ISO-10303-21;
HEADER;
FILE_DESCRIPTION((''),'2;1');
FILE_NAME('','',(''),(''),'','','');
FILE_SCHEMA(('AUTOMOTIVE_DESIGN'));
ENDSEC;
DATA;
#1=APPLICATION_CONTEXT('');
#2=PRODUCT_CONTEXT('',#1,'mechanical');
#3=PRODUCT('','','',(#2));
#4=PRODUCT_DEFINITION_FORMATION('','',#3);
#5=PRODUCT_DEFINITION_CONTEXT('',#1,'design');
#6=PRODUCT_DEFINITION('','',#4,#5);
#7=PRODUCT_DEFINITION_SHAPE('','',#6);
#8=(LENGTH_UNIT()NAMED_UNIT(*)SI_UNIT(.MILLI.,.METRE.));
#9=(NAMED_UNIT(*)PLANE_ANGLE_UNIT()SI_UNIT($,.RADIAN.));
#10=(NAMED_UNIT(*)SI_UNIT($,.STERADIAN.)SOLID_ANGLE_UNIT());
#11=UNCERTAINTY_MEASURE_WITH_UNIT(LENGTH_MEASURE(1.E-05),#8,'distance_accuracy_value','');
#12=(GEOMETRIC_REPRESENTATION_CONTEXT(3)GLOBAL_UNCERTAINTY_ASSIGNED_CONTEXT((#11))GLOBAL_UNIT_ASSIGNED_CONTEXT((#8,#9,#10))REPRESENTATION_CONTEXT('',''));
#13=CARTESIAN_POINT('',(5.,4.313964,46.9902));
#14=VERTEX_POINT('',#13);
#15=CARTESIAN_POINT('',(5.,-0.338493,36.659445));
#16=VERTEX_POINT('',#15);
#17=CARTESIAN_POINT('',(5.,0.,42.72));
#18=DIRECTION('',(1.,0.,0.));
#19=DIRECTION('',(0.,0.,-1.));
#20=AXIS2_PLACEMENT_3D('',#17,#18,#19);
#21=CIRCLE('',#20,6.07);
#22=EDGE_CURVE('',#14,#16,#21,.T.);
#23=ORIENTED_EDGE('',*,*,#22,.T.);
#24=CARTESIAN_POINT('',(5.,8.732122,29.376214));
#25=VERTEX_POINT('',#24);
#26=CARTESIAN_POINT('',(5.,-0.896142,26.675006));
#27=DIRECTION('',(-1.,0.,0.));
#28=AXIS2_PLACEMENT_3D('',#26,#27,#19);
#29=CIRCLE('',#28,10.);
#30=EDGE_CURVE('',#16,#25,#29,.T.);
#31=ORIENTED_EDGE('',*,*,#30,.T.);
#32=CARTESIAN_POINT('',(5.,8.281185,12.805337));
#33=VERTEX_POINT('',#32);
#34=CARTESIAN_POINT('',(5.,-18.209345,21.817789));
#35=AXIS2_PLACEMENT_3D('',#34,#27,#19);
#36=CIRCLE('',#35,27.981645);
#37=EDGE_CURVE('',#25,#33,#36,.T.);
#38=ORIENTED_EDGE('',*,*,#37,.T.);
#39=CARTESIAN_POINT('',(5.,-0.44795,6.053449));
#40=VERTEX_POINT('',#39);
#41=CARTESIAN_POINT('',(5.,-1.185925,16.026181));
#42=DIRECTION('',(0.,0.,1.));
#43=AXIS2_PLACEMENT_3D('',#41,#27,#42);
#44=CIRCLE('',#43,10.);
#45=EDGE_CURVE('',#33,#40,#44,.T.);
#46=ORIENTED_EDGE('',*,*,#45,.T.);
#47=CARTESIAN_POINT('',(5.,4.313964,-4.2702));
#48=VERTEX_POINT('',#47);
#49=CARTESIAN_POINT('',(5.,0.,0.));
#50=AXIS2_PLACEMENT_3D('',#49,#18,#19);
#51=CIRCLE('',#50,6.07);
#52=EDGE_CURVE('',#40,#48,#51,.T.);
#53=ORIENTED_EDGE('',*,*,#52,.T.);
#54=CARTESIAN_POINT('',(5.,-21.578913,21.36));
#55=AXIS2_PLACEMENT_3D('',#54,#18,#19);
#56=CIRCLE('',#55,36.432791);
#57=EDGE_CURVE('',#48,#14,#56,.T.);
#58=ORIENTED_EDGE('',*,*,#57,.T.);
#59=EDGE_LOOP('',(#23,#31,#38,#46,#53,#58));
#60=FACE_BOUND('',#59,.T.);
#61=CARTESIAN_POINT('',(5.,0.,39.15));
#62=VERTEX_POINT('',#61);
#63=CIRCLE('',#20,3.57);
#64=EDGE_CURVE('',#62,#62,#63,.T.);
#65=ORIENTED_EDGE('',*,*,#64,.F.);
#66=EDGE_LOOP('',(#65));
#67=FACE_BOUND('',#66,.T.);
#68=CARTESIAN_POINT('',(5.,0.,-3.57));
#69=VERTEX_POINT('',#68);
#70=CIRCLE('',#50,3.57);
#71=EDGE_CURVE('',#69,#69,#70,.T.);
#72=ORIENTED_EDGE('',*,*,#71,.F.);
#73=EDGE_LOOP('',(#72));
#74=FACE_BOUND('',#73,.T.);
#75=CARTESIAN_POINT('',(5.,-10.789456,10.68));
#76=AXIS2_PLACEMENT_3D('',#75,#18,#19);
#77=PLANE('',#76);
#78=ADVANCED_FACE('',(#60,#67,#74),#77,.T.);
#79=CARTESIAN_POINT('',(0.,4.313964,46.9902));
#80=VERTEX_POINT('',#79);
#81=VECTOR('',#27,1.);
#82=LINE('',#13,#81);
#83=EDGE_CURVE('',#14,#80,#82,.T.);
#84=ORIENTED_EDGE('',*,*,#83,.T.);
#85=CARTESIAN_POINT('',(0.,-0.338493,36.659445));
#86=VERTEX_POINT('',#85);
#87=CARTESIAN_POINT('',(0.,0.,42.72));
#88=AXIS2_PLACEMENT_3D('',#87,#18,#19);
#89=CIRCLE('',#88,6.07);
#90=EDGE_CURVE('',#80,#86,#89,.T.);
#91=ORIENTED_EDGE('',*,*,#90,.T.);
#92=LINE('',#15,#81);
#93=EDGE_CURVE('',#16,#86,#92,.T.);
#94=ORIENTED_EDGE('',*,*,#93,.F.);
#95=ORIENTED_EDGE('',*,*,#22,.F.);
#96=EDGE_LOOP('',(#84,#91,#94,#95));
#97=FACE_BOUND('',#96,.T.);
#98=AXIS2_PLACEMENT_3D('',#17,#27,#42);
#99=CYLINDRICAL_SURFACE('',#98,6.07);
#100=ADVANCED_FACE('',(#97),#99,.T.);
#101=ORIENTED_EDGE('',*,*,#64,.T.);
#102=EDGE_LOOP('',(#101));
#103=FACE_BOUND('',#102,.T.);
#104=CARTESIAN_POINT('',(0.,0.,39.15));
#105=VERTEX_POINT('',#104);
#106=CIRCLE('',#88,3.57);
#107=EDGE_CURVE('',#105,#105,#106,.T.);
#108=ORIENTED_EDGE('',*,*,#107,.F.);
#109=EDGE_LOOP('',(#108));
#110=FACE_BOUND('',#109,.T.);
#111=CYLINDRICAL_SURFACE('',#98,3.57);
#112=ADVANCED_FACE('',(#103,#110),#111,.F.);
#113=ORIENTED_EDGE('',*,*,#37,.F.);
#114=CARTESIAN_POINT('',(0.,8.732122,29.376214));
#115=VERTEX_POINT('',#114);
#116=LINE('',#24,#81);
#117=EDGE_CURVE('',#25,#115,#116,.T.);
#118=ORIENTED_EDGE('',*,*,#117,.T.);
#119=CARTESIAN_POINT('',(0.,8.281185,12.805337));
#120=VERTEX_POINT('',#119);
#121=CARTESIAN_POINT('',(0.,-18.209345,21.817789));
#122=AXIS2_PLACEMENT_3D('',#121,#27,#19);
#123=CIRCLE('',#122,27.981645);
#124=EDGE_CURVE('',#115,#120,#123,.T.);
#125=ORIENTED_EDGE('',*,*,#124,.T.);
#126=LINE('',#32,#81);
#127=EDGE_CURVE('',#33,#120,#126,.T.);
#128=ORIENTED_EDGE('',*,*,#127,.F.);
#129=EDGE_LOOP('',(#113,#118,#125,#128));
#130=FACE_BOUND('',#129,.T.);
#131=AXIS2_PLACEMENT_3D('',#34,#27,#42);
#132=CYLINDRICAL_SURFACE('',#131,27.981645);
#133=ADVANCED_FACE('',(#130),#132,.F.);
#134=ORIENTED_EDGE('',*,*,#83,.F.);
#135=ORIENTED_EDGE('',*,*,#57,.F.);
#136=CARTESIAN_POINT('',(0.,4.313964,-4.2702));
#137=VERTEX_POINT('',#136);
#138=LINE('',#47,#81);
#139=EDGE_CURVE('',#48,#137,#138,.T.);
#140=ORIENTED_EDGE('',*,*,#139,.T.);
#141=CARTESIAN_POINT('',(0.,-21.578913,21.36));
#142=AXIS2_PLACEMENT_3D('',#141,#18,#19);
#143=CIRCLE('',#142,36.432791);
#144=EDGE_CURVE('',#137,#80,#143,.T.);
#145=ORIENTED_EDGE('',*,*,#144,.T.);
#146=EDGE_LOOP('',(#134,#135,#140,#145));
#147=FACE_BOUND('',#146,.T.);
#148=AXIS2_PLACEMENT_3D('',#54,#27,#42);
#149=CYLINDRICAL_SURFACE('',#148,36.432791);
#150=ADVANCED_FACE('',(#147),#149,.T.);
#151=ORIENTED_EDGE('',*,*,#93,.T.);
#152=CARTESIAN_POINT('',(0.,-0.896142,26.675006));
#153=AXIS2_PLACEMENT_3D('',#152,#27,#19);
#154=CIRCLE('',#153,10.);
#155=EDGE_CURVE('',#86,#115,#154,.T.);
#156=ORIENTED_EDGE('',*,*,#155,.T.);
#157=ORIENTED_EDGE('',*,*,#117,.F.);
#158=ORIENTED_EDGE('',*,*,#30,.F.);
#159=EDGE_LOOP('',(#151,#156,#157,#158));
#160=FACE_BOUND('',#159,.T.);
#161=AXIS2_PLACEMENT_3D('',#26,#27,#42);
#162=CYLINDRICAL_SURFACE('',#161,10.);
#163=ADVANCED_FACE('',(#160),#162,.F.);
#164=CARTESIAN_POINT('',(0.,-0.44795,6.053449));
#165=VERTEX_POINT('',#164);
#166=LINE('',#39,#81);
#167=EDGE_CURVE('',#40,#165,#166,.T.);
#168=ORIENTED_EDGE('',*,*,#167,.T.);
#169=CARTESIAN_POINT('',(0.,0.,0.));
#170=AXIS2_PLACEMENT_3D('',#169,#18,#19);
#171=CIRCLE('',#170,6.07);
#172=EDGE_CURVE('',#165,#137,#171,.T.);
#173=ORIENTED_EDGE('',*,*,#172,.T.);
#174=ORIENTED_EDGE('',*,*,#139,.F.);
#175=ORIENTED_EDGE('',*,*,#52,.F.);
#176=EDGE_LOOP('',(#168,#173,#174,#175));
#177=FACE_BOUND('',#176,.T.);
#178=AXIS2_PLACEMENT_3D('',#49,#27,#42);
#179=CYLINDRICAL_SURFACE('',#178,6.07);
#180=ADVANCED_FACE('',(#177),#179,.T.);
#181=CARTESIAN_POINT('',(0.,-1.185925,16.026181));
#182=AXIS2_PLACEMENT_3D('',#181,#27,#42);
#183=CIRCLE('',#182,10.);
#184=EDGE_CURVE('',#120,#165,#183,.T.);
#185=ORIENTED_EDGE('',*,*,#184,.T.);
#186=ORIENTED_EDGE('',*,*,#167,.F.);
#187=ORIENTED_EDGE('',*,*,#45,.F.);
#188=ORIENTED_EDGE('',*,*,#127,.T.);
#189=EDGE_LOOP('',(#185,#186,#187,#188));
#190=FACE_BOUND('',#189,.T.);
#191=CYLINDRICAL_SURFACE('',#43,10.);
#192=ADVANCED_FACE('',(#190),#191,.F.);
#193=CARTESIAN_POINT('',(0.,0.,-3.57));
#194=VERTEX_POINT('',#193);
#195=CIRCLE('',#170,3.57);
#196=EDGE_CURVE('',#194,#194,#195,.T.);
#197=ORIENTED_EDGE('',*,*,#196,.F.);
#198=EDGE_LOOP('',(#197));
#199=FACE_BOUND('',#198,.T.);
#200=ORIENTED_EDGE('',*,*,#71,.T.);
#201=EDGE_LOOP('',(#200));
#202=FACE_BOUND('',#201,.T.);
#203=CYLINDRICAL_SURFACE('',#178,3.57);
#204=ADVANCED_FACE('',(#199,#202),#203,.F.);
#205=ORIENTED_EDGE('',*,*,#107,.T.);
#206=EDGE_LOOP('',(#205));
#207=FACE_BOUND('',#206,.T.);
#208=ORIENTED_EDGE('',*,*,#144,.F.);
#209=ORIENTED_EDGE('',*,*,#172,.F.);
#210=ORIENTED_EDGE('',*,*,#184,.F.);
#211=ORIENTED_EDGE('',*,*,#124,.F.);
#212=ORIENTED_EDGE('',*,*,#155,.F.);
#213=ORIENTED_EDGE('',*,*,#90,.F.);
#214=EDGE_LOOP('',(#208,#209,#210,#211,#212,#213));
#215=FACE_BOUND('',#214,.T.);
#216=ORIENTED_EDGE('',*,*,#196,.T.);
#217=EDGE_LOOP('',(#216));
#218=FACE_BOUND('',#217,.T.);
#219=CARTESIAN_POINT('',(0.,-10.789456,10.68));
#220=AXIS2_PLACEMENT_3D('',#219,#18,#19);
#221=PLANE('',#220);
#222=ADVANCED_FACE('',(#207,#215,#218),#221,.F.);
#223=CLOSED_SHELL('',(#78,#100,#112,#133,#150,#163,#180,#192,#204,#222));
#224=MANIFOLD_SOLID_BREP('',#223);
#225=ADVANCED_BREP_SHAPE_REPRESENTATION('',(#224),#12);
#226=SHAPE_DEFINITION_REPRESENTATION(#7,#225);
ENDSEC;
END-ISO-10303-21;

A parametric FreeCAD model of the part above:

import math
import FreeCAD as App
import Part
import Sketcher

V = App.Vector
Q = App.Units.Quantity

doc = App.newDocument("Part")
params = doc.addObject("Spreadsheet::Sheet", "Params")
for row, (alias, value) in enumerate([
    ("sketch1_radius", "10 mm"),
    ("sketch1_diameter", "7.14 mm"),
    ("sketch1_radius2", "6.07 mm"),
    ("pad1_length", "5 mm"),
], start=1):
    params.set(f"A{row}", alias)
    params.set(f"B{row}", "=" + value)
    params.setAlias(f"B{row}", alias)

body = doc.addObject("PartDesign::Body", "Body")

# Sketch on YZ plane
sketch1 = body.newObject("Sketcher::SketchObject", "Sketch")
sketch1.AttachmentSupport = (doc.getObject("YZ_Plane"), [""])
sketch1.MapMode = "FlatFace"
sketch1.addGeometry([
    Part.ArcOfCircle(Part.Circle(V(-21.6, 21.4, 0), V(0, 0, 1), 36.4), math.radians(-45), math.radians(45)),  # 0
    Part.ArcOfCircle(Part.Circle(V(0, 42.7, 0), V(0, 0, 1), 6.1), math.radians(45), math.radians(267)),  # 1
    Part.ArcOfCircle(Part.Circle(V(-0.9, 26.7, 0), V(0, 0, 1), 10), math.radians(16), math.radians(87)),  # 2
    Part.ArcOfCircle(Part.Circle(V(-18.2, 21.8, 0), V(0, 0, 1), 28), math.radians(-19), math.radians(16)),  # 3
    Part.ArcOfCircle(Part.Circle(V(-1.2, 16, 0), V(0, 0, 1), 10), math.radians(-86), math.radians(-19)),  # 4
    Part.ArcOfCircle(Part.Circle(V(0, 0, 0), V(0, 0, 1), 6.1), math.radians(94), math.radians(315)),  # 5
    Part.Circle(V(0, 42.7, 0), V(0, 0, 1), 3.6),  # 6
    Part.Circle(V(0, 0, 0), V(0, 0, 1), 3.6),  # 7
], False)
sketch1.addConstraint([
    Sketcher.Constraint("Tangent", 0, 2, 1, 1),
    Sketcher.Constraint("Tangent", 1, 2, 2, 2),
    Sketcher.Constraint("Tangent", 2, 1, 3, 2),
    Sketcher.Constraint("Tangent", 3, 1, 4, 2),
    Sketcher.Constraint("Tangent", 4, 1, 5, 1),
    Sketcher.Constraint("Tangent", 5, 2, 0, 1),
    Sketcher.Constraint("Coincident", 5, 3, -1, 1),
    Sketcher.Constraint("Coincident", 7, 3, -1, 1),
    Sketcher.Constraint("Coincident", 6, 3, 1, 3),
    Sketcher.Constraint("Equal", 2, 4),
    Sketcher.Constraint("Equal", 1, 5),
    Sketcher.Constraint("Equal", 6, 7),
    Sketcher.Constraint("PointOnObject", 1, 3, -2),
    Sketcher.Constraint("Radius", 2, Q("10 mm")),
    Sketcher.Constraint("Diameter", 6, Q("7.14 mm")),
    Sketcher.Constraint("Radius", 1, Q("6.07 mm")),
    Sketcher.Constraint("DistanceY", -1, 1, 0, 3, Q("21.36 mm")),
    Sketcher.Constraint("Radius", 0, Q("36.432791 mm")),
    Sketcher.Constraint("Radius", 3, Q("27.981645 mm")),
    Sketcher.Constraint("DistanceX", 2, 3, -1, 1, Q("0.896142 mm")),
    Sketcher.Constraint("DistanceY", -1, 1, 3, 3, Q("21.817789 mm")),
])
sketch1.setExpression("Constraints[13]", "Params.sketch1_radius")
sketch1.setExpression("Constraints[14]", "Params.sketch1_diameter")
sketch1.setExpression("Constraints[15]", "Params.sketch1_radius2")
pad1 = body.newObject("PartDesign::Pad", "Pad")
pad1.Profile = sketch1
pad1.setExpression("Length", "Params.pad1_length")

doc.recompute()
